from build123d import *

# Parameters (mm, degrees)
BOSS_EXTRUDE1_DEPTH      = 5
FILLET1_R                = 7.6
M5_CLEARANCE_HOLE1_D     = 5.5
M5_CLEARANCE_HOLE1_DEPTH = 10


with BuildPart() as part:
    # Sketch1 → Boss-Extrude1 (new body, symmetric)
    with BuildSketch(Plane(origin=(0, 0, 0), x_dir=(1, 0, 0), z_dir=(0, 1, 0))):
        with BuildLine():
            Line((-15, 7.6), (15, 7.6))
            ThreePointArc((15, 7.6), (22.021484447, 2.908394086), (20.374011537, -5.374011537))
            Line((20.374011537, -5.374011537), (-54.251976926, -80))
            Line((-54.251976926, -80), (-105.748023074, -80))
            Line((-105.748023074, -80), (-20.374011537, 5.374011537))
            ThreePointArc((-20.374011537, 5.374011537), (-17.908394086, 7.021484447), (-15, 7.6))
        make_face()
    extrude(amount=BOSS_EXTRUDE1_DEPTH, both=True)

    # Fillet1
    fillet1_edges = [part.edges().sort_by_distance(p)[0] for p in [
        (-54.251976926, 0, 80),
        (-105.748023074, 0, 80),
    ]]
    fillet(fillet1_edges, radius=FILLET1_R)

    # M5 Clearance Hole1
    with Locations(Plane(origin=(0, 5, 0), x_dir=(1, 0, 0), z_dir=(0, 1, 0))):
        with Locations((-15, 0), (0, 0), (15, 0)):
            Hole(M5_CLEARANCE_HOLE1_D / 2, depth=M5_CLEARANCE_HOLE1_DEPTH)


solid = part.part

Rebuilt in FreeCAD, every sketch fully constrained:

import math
import FreeCAD as App
import Part
import Sketcher

V = App.Vector
Q = App.Units.Quantity


def edges_at(feature, points):
    """Names of the edges that pass closest to the given points."""
    edges = feature.Shape.Edges
    near = lambda p: min(range(len(edges)), key=lambda i: edges[i].distToShape(Part.Vertex(*p))[0])
    return sorted({f"Edge{near(p) + 1}" for p in points})

doc = App.newDocument("Part")
body = doc.addObject("PartDesign::Body", "Body")

# Sketch on XZ plane
sketch1 = doc.addObject("Sketcher::SketchObject", "Sketch")
body.addObject(sketch1)
sketch1.AttachmentSupport = (doc.XZ_Plane, [""])
sketch1.MapMode = "FlatFace"
sketch1.addGeometry([
    Part.LineSegment(V(15, -7.6, 0), V(-15, -7.6, 0)),  # 0
    Part.ArcOfCircle(Part.Circle(V(-15, 0, 0), V(0, 0, 1), 7.6), math.radians(-135), math.radians(-90)),  # 1
    Part.LineSegment(V(-20.374012, -5.374012, 0), V(-105.748023, 80, 0)),  # 2
    Part.LineSegment(V(-105.748023, 80, 0), V(-54.251977, 80, 0)),  # 3
    Part.LineSegment(V(-54.251977, 80, 0), V(20.374012, 5.374012, 0)),  # 4
    Part.ArcOfCircle(Part.Circle(V(15, 0, 0), V(0, 0, 1), 7.6), math.radians(-90), math.radians(45)),  # 5
], False)
sketch1.addConstraint([
    Sketcher.Constraint("Tangent", 0, 2, 1, 2),
    Sketcher.Constraint("Tangent", 1, 1, 2, 1),
    Sketcher.Constraint("Coincident", 2, 2, 3, 1),
    Sketcher.Constraint("Coincident", 3, 2, 4, 1),
    Sketcher.Constraint("Tangent", 4, 2, 5, 2),
    Sketcher.Constraint("Tangent", 5, 1, 0, 1),
    Sketcher.Constraint("Horizontal", 0),
    Sketcher.Constraint("Horizontal", 3),
    Sketcher.Constraint("Equal", 1, 5),
    Sketcher.Constraint("Symmetric", 1, 3, 5, 3, -1, 1),
    Sketcher.Constraint("Parallel", 2, 4),
    Sketcher.Constraint("Radius", 1, Q("7.6 mm")),
    Sketcher.Constraint("DistanceX", 0, 2, 0, 1, Q("30 mm")),
    Sketcher.Constraint("Angle", 2, Q("135 deg")),
    Sketcher.Constraint("DistanceY", -1, 1, 2, 2, Q("80 mm")),
])
pad1 = doc.addObject("PartDesign::Pad", "Pad")
body.addObject(pad1)
pad1.Profile = sketch1
pad1.Length = 10
pad1.Midplane = True
doc.recompute()

fillet = doc.addObject("PartDesign::Fillet", "Fillet")
body.addObject(fillet)
fillet.Base = (pad1, edges_at(pad1, [(-54.252, 0, 80), (-105.748, 0, 80)]))
fillet.Radius = 7.6

# Sketch on XZ plane
sketch2 = doc.addObject("Sketcher::SketchObject", "Sketch001")
body.addObject(sketch2)
sketch2.AttachmentSupport = (doc.XZ_Plane, [""])
sketch2.MapMode = "FlatFace"
sketch2.AttachmentOffset = App.Placement(V(0, 0, -5), App.Rotation())
sketch2.addGeometry([
    Part.Circle(V(-15, 0, 0), V(0, 0, 1), 2.75),
    Part.Circle(V(0, 0, 0), V(0, 0, 1), 2.75),
    Part.Circle(V(15, 0, 0), V(0, 0, 1), 2.75),
], False)
sketch2.addConstraint([
    Sketcher.Constraint("Coincident", 1, 3, -1, 1),
    Sketcher.Constraint("Equal", 0, 1),
    Sketcher.Constraint("Equal", 1, 2),
    Sketcher.Constraint("Symmetric", 0, 3, 2, 3, -1, 1),
    Sketcher.Constraint("PointOnObject", 0, 3, -1),
    Sketcher.Constraint("Diameter", 0, Q("5.5 mm")),
    Sketcher.Constraint("DistanceX", 0, 3, -1, 1, Q("15 mm")),
])
doc.recompute()
hole = doc.addObject("PartDesign::Hole", "Hole")
body.addObject(hole)
hole.Profile = sketch2
hole.ThreadType = "None"
hole.Diameter = 5.5
hole.DepthType = "Dimension"
hole.Depth = 10
hole.DrillPoint = "Flat"
hole.Reversed = True

doc.recompute()
